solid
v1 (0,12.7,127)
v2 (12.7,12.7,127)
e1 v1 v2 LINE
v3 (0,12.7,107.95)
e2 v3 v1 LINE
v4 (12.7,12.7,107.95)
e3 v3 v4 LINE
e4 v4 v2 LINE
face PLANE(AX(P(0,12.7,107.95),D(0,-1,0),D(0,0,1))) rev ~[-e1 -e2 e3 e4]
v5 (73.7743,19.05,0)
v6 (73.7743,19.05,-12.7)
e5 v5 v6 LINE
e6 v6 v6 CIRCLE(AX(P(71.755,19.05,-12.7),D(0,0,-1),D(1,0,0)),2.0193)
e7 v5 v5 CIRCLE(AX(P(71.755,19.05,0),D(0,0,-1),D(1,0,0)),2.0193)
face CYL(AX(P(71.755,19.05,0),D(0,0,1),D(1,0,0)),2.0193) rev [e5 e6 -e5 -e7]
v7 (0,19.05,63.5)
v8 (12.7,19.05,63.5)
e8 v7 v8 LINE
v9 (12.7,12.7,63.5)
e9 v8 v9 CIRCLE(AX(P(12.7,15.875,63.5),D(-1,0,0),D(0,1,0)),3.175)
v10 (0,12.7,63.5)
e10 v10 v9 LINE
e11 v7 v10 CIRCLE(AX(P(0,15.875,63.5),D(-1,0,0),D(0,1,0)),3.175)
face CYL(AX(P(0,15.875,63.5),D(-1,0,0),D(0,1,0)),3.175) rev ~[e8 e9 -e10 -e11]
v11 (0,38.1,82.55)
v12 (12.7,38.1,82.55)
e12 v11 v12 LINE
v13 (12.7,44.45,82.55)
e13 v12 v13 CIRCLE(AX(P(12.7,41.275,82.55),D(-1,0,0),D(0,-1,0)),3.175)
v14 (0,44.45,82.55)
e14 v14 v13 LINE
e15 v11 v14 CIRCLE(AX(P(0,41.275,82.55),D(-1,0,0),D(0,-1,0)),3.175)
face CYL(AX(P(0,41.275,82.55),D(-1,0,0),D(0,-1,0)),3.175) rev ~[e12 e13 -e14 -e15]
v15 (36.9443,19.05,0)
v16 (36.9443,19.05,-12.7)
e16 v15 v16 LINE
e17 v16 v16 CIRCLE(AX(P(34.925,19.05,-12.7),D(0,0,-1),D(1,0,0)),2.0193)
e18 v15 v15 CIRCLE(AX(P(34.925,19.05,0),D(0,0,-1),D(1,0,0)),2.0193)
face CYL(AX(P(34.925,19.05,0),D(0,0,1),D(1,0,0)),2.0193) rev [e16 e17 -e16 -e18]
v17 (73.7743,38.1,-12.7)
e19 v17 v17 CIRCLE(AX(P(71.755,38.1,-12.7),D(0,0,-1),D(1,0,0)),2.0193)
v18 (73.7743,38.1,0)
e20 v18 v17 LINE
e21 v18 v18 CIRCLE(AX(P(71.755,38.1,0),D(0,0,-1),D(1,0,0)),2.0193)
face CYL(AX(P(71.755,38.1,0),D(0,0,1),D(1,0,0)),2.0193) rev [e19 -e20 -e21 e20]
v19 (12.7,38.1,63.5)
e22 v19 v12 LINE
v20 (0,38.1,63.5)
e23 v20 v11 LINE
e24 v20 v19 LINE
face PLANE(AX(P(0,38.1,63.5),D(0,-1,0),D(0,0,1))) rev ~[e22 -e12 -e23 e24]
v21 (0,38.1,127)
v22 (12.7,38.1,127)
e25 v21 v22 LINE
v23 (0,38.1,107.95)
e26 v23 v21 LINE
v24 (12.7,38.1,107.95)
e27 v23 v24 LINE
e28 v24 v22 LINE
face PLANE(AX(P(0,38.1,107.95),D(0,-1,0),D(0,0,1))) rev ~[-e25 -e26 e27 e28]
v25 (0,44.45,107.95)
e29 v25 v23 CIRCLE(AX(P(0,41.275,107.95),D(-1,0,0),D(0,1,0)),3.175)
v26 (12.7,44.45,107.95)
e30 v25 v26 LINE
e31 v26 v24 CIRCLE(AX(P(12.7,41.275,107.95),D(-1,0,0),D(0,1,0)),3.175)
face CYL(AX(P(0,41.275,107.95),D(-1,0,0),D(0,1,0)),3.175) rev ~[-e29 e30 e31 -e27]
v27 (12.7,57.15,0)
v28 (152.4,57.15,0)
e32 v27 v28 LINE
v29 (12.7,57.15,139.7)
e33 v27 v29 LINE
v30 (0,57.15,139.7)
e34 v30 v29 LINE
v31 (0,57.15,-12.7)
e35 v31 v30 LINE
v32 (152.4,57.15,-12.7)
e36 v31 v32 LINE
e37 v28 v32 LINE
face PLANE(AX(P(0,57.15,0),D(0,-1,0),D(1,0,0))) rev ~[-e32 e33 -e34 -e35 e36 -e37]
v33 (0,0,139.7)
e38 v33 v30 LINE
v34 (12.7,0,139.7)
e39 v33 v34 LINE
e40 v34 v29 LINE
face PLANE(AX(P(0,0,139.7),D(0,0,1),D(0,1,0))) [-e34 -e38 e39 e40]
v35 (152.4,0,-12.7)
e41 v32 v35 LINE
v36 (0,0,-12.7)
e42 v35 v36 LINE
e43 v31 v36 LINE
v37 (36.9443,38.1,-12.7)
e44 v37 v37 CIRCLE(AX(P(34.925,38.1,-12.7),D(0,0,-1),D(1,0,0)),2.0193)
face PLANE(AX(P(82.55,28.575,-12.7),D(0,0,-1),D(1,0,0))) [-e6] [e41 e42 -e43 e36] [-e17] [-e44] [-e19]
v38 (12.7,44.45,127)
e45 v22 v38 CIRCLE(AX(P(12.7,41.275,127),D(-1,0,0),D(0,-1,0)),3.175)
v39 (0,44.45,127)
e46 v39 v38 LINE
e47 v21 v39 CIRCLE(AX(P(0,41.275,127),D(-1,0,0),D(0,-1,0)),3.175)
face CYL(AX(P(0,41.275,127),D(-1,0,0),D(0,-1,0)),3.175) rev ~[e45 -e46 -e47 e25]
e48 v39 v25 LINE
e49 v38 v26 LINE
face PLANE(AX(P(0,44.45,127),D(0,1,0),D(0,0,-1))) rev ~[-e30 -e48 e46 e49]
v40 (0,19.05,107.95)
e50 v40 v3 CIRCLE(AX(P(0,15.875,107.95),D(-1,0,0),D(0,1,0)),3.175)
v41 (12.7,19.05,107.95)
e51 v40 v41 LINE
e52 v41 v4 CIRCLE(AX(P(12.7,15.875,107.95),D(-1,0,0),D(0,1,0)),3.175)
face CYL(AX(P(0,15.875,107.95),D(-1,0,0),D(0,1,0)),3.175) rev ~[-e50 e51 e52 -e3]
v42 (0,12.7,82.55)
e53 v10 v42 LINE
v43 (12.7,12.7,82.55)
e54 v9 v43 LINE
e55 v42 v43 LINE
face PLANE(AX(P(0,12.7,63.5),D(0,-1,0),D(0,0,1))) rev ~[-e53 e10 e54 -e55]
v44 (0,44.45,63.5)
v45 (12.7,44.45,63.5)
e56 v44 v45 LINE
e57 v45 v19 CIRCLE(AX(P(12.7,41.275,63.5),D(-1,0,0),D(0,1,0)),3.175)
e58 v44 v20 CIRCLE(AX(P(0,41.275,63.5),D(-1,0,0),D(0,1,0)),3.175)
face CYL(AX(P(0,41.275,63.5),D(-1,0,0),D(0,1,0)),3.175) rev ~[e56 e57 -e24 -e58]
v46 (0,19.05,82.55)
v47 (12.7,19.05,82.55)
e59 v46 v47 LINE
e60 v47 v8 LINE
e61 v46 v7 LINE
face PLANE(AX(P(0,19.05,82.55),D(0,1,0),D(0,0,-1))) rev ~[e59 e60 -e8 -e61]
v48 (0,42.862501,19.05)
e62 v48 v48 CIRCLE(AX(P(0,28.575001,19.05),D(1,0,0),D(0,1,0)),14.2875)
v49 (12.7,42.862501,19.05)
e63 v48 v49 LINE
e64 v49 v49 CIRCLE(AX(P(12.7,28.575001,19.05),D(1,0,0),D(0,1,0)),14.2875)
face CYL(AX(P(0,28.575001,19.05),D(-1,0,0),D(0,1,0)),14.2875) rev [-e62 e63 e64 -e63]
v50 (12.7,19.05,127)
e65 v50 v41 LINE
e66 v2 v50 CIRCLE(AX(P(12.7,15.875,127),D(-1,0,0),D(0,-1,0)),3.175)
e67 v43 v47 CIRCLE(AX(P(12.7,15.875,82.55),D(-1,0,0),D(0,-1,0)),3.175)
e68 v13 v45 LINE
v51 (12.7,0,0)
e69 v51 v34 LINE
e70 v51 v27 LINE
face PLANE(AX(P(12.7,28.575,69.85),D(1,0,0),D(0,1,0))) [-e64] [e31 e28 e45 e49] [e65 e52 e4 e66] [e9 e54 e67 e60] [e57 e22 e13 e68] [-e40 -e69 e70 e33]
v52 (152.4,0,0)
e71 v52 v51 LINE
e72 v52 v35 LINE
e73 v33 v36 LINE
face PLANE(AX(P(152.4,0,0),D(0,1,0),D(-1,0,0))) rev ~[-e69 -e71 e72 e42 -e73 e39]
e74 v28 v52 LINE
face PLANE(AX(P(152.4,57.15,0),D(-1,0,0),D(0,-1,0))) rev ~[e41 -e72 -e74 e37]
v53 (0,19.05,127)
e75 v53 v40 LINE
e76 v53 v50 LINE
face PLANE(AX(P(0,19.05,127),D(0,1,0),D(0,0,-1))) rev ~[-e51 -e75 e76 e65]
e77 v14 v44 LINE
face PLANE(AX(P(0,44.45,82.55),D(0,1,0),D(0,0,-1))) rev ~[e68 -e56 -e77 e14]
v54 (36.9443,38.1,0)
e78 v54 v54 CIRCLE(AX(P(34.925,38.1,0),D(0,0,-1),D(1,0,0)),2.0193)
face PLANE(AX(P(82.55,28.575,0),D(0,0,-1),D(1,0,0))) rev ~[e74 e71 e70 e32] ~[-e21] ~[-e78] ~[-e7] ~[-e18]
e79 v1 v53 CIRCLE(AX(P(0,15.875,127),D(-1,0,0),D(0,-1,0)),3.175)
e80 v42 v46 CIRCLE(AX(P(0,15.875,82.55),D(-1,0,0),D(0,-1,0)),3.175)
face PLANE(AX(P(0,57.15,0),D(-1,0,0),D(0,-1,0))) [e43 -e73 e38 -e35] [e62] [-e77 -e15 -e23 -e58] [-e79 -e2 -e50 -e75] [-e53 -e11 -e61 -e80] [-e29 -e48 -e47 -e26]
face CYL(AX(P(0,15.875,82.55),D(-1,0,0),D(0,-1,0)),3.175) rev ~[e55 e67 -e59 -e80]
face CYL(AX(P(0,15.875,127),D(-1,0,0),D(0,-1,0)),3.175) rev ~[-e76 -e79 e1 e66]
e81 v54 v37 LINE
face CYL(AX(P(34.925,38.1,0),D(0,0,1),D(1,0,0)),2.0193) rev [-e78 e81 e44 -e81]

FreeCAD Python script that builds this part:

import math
import FreeCAD as App
import Part
import Sketcher

V = App.Vector
Q = App.Units.Quantity

doc = App.newDocument("Part")
body = doc.addObject("PartDesign::Body", "Body")

sketch1 = body.newObject("Sketcher::SketchObject", "Sketch")
sketch1.AttachmentSupport = (doc.getObject("YZ_Plane"), [""])
sketch1.MapMode = "FlatFace"
sketch1.addGeometry([
    Part.LineSegment(V(0, 139.7, 0), V(0, 0, 0)),
    Part.LineSegment(V(0, 0, 0), V(57.15, 0, 0)),
    Part.LineSegment(V(57.15, 0, 0), V(57.15, 139.7, 0)),
    Part.LineSegment(V(57.15, 139.7, 0), V(0, 139.7, 0)),
    Part.Circle(V(28.575001, 19.05, 0), V(0, 0, 1), 14.2875),
    Part.LineSegment(V(19.05, 82.55, 0), V(19.05, 63.5, 0)),
    Part.ArcOfCircle(Part.Circle(V(15.875, 63.5, 0), V(0, 0, 1), 3.175), math.radians(180), math.radians(360)),
    Part.LineSegment(V(12.7, 63.5, 0), V(12.7, 82.55, 0)),
    Part.ArcOfCircle(Part.Circle(V(15.875, 82.55, 0), V(0, 0, 1), 3.175), math.radians(0), math.radians(180)),
    Part.LineSegment(V(19.05, 127, 0), V(19.05, 107.95, 0)),
    Part.ArcOfCircle(Part.Circle(V(15.875, 107.95, 0), V(0, 0, 1), 3.175), math.radians(180), math.radians(360)),
    Part.LineSegment(V(12.7, 107.95, 0), V(12.7, 127, 0)),
    Part.ArcOfCircle(Part.Circle(V(15.875, 127, 0), V(0, 0, 1), 3.175), math.radians(0), math.radians(180)),
    Part.LineSegment(V(44.45, 82.55, 0), V(44.45, 63.5, 0)),
    Part.ArcOfCircle(Part.Circle(V(41.275, 63.5, 0), V(0, 0, 1), 3.175), math.radians(180), math.radians(360)),
    Part.LineSegment(V(38.1, 63.5, 0), V(38.1, 82.55, 0)),
    Part.ArcOfCircle(Part.Circle(V(41.275, 82.55, 0), V(0, 0, 1), 3.175), math.radians(0), math.radians(180)),
    Part.LineSegment(V(44.45, 127, 0), V(44.45, 107.95, 0)),
    Part.ArcOfCircle(Part.Circle(V(41.275, 107.95, 0), V(0, 0, 1), 3.175), math.radians(180), math.radians(360)),
    Part.LineSegment(V(38.1, 107.95, 0), V(38.1, 127, 0)),
    Part.ArcOfCircle(Part.Circle(V(41.275, 127, 0), V(0, 0, 1), 3.175), math.radians(0), math.radians(180)),
], False)
sketch1.addConstraint([
    Sketcher.Constraint("Coincident", 0, 2, 1, 1),
    Sketcher.Constraint("Coincident", 1, 2, 2, 1),
    Sketcher.Constraint("Coincident", 2, 2, 3, 1),
    Sketcher.Constraint("Coincident", 3, 2, 0, 1),
    Sketcher.Constraint("Tangent", 5, 2, 6, 2),
    Sketcher.Constraint("Tangent", 6, 1, 7, 1),
    Sketcher.Constraint("Tangent", 7, 2, 8, 2),
    Sketcher.Constraint("Tangent", 8, 1, 5, 1),
    Sketcher.Constraint("Tangent", 9, 2, 10, 2),
    Sketcher.Constraint("Tangent", 10, 1, 11, 1),
    Sketcher.Constraint("Tangent", 11, 2, 12, 2),
    Sketcher.Constraint("Tangent", 12, 1, 9, 1),
    Sketcher.Constraint("Tangent", 13, 2, 14, 2),
    Sketcher.Constraint("Tangent", 14, 1, 15, 1),
    Sketcher.Constraint("Tangent", 15, 2, 16, 2),
    Sketcher.Constraint("Tangent", 16, 1, 13, 1),
    Sketcher.Constraint("Tangent", 17, 2, 18, 2),
    Sketcher.Constraint("Tangent", 18, 1, 19, 1),
    Sketcher.Constraint("Tangent", 19, 2, 20, 2),
    Sketcher.Constraint("Tangent", 20, 1, 17, 1),
    Sketcher.Constraint("Vertical", 0),
    Sketcher.Constraint("Horizontal", 1),
    Sketcher.Constraint("Vertical", 2),
    Sketcher.Constraint("Horizontal", 3),
    Sketcher.Constraint("Vertical", 5),
    Sketcher.Constraint("Vertical", 7),
    Sketcher.Constraint("Vertical", 9),
    Sketcher.Constraint("Vertical", 11),
    Sketcher.Constraint("Vertical", 13),
    Sketcher.Constraint("Vertical", 15),
    Sketcher.Constraint("Vertical", 17),
    Sketcher.Constraint("Vertical", 19),
    Sketcher.Constraint("Coincident", 0, 2, -1, 1),
    Sketcher.Constraint("Equal", 8, 10),
    Sketcher.Constraint("Equal", 12, 14),
    Sketcher.Constraint("Equal", 16, 18),
    Sketcher.Constraint("Horizontal", 6, 3, 14, 3),
    Sketcher.Constraint("Horizontal", 8, 3, 16, 3),
    Sketcher.Constraint("Horizontal", 10, 3, 18, 3),
    Sketcher.Constraint("Horizontal", 12, 3, 20, 3),
    Sketcher.Constraint("Vertical", 8, 3, 10, 3),
    Sketcher.Constraint("Vertical", 16, 3, 18, 3),
    Sketcher.Constraint("Equal", 7, 9),
    Sketcher.Constraint("Diameter", 4, Q("1.125 in")),
    Sketcher.Constraint("DistanceY", 0, 2, 0, 1, Q("5.5 in")),
    Sketcher.Constraint("DistanceY", -1, 1, 12, 3, Q("5 in")),
    Sketcher.Constraint("Radius", 6, Q("0.125 in")),
    Sketcher.Constraint("DistanceY", 8, 3, 10, 3, Q("1 in")),
    Sketcher.Constraint("DistanceX", 6, 3, 14, 3, Q("1 in")),
    Sketcher.Constraint("DistanceX", 1, 1, 1, 2, Q("2.25 in")),
    Sketcher.Constraint("DistanceY", 5, 2, 5, 1, Q("0.75 in")),
    Sketcher.Constraint("DistanceX", -1, 1, 6, 1, Q("0.5 in")),
    Sketcher.Constraint("DistanceX", 6, 3, 4, 3, Q("0.5 in")),
    Sketcher.Constraint("DistanceY", 4, 3, 8, 3, Q("2.5 in")),
])
pad1 = body.newObject("PartDesign::Pad", "Pad")
pad1.Profile = sketch1
pad1.Length = Q("0.5 in")

sketch2 = body.newObject("Sketcher::SketchObject", "Sketch001")
sketch2.AttachmentSupport = (doc.getObject("XY_Plane"), [""])
sketch2.MapMode = "FlatFace"
sketch2.addGeometry([
    Part.LineSegment(V(152.4, 57.15, 0), V(152.4, 0, 0)),
    Part.LineSegment(V(152.4, 0, 0), V(0, 0, 0)),
    Part.LineSegment(V(0, 0, 0), V(0, 57.15, 0)),
    Part.LineSegment(V(0, 57.15, 0), V(152.4, 57.15, 0)),
    Part.Circle(V(34.925, 38.1, 0), V(0, 0, 1), 2.0193),
    Part.Circle(V(71.755, 38.1, 0), V(0, 0, 1), 2.0193),
    Part.Circle(V(34.925, 19.05, 0), V(0, 0, 1), 2.0193),
    Part.Circle(V(71.755, 19.05, 0), V(0, 0, 1), 2.0193),
], False)
sketch2.addConstraint([
    Sketcher.Constraint("Coincident", 0, 2, 1, 1),
    Sketcher.Constraint("Coincident", 1, 2, 2, 1),
    Sketcher.Constraint("Coincident", 2, 2, 3, 1),
    Sketcher.Constraint("Coincident", 3, 2, 0, 1),
    Sketcher.Constraint("Vertical", 0),
    Sketcher.Constraint("Horizontal", 1),
    Sketcher.Constraint("Vertical", 2),
    Sketcher.Constraint("Horizontal", 3),
    Sketcher.Constraint("Coincident", 1, 2, -1, 1),
    Sketcher.Constraint("Equal", 4, 5),
    Sketcher.Constraint("Equal", 5, 6),
    Sketcher.Constraint("Equal", 6, 7),
    Sketcher.Constraint("Horizontal", 4, 3, 5, 3),
    Sketcher.Constraint("Horizontal", 6, 3, 7, 3),
    Sketcher.Constraint("Vertical", 4, 3, 6, 3),
    Sketcher.Constraint("Vertical", 5, 3, 7, 3),
    Sketcher.Constraint("DistanceX", 1, 2, 1, 1, Q("6 in")),
    Sketcher.Constraint("Diameter", 4, Q("0.159 in")),
    Sketcher.Constraint("DistanceY", 0, 2, 0, 1, Q("2.25 in")),
    Sketcher.Constraint("DistanceY", -1, 1, 4, 3, Q("1.5 in")),
    Sketcher.Constraint("DistanceY", 6, 3, 2, 2, Q("1.5 in")),
    Sketcher.Constraint("DistanceX", 4, 3, 5, 3, Q("1.45 in")),
    Sketcher.Constraint("DistanceX", -1, 1, 4, 3, Q("1.375 in")),
])
pad2 = body.newObject("PartDesign::Pad", "Pad001")
pad2.Profile = sketch2
pad2.Length = Q("0.5 in")
pad2.Reversed = True

doc.recompute()
